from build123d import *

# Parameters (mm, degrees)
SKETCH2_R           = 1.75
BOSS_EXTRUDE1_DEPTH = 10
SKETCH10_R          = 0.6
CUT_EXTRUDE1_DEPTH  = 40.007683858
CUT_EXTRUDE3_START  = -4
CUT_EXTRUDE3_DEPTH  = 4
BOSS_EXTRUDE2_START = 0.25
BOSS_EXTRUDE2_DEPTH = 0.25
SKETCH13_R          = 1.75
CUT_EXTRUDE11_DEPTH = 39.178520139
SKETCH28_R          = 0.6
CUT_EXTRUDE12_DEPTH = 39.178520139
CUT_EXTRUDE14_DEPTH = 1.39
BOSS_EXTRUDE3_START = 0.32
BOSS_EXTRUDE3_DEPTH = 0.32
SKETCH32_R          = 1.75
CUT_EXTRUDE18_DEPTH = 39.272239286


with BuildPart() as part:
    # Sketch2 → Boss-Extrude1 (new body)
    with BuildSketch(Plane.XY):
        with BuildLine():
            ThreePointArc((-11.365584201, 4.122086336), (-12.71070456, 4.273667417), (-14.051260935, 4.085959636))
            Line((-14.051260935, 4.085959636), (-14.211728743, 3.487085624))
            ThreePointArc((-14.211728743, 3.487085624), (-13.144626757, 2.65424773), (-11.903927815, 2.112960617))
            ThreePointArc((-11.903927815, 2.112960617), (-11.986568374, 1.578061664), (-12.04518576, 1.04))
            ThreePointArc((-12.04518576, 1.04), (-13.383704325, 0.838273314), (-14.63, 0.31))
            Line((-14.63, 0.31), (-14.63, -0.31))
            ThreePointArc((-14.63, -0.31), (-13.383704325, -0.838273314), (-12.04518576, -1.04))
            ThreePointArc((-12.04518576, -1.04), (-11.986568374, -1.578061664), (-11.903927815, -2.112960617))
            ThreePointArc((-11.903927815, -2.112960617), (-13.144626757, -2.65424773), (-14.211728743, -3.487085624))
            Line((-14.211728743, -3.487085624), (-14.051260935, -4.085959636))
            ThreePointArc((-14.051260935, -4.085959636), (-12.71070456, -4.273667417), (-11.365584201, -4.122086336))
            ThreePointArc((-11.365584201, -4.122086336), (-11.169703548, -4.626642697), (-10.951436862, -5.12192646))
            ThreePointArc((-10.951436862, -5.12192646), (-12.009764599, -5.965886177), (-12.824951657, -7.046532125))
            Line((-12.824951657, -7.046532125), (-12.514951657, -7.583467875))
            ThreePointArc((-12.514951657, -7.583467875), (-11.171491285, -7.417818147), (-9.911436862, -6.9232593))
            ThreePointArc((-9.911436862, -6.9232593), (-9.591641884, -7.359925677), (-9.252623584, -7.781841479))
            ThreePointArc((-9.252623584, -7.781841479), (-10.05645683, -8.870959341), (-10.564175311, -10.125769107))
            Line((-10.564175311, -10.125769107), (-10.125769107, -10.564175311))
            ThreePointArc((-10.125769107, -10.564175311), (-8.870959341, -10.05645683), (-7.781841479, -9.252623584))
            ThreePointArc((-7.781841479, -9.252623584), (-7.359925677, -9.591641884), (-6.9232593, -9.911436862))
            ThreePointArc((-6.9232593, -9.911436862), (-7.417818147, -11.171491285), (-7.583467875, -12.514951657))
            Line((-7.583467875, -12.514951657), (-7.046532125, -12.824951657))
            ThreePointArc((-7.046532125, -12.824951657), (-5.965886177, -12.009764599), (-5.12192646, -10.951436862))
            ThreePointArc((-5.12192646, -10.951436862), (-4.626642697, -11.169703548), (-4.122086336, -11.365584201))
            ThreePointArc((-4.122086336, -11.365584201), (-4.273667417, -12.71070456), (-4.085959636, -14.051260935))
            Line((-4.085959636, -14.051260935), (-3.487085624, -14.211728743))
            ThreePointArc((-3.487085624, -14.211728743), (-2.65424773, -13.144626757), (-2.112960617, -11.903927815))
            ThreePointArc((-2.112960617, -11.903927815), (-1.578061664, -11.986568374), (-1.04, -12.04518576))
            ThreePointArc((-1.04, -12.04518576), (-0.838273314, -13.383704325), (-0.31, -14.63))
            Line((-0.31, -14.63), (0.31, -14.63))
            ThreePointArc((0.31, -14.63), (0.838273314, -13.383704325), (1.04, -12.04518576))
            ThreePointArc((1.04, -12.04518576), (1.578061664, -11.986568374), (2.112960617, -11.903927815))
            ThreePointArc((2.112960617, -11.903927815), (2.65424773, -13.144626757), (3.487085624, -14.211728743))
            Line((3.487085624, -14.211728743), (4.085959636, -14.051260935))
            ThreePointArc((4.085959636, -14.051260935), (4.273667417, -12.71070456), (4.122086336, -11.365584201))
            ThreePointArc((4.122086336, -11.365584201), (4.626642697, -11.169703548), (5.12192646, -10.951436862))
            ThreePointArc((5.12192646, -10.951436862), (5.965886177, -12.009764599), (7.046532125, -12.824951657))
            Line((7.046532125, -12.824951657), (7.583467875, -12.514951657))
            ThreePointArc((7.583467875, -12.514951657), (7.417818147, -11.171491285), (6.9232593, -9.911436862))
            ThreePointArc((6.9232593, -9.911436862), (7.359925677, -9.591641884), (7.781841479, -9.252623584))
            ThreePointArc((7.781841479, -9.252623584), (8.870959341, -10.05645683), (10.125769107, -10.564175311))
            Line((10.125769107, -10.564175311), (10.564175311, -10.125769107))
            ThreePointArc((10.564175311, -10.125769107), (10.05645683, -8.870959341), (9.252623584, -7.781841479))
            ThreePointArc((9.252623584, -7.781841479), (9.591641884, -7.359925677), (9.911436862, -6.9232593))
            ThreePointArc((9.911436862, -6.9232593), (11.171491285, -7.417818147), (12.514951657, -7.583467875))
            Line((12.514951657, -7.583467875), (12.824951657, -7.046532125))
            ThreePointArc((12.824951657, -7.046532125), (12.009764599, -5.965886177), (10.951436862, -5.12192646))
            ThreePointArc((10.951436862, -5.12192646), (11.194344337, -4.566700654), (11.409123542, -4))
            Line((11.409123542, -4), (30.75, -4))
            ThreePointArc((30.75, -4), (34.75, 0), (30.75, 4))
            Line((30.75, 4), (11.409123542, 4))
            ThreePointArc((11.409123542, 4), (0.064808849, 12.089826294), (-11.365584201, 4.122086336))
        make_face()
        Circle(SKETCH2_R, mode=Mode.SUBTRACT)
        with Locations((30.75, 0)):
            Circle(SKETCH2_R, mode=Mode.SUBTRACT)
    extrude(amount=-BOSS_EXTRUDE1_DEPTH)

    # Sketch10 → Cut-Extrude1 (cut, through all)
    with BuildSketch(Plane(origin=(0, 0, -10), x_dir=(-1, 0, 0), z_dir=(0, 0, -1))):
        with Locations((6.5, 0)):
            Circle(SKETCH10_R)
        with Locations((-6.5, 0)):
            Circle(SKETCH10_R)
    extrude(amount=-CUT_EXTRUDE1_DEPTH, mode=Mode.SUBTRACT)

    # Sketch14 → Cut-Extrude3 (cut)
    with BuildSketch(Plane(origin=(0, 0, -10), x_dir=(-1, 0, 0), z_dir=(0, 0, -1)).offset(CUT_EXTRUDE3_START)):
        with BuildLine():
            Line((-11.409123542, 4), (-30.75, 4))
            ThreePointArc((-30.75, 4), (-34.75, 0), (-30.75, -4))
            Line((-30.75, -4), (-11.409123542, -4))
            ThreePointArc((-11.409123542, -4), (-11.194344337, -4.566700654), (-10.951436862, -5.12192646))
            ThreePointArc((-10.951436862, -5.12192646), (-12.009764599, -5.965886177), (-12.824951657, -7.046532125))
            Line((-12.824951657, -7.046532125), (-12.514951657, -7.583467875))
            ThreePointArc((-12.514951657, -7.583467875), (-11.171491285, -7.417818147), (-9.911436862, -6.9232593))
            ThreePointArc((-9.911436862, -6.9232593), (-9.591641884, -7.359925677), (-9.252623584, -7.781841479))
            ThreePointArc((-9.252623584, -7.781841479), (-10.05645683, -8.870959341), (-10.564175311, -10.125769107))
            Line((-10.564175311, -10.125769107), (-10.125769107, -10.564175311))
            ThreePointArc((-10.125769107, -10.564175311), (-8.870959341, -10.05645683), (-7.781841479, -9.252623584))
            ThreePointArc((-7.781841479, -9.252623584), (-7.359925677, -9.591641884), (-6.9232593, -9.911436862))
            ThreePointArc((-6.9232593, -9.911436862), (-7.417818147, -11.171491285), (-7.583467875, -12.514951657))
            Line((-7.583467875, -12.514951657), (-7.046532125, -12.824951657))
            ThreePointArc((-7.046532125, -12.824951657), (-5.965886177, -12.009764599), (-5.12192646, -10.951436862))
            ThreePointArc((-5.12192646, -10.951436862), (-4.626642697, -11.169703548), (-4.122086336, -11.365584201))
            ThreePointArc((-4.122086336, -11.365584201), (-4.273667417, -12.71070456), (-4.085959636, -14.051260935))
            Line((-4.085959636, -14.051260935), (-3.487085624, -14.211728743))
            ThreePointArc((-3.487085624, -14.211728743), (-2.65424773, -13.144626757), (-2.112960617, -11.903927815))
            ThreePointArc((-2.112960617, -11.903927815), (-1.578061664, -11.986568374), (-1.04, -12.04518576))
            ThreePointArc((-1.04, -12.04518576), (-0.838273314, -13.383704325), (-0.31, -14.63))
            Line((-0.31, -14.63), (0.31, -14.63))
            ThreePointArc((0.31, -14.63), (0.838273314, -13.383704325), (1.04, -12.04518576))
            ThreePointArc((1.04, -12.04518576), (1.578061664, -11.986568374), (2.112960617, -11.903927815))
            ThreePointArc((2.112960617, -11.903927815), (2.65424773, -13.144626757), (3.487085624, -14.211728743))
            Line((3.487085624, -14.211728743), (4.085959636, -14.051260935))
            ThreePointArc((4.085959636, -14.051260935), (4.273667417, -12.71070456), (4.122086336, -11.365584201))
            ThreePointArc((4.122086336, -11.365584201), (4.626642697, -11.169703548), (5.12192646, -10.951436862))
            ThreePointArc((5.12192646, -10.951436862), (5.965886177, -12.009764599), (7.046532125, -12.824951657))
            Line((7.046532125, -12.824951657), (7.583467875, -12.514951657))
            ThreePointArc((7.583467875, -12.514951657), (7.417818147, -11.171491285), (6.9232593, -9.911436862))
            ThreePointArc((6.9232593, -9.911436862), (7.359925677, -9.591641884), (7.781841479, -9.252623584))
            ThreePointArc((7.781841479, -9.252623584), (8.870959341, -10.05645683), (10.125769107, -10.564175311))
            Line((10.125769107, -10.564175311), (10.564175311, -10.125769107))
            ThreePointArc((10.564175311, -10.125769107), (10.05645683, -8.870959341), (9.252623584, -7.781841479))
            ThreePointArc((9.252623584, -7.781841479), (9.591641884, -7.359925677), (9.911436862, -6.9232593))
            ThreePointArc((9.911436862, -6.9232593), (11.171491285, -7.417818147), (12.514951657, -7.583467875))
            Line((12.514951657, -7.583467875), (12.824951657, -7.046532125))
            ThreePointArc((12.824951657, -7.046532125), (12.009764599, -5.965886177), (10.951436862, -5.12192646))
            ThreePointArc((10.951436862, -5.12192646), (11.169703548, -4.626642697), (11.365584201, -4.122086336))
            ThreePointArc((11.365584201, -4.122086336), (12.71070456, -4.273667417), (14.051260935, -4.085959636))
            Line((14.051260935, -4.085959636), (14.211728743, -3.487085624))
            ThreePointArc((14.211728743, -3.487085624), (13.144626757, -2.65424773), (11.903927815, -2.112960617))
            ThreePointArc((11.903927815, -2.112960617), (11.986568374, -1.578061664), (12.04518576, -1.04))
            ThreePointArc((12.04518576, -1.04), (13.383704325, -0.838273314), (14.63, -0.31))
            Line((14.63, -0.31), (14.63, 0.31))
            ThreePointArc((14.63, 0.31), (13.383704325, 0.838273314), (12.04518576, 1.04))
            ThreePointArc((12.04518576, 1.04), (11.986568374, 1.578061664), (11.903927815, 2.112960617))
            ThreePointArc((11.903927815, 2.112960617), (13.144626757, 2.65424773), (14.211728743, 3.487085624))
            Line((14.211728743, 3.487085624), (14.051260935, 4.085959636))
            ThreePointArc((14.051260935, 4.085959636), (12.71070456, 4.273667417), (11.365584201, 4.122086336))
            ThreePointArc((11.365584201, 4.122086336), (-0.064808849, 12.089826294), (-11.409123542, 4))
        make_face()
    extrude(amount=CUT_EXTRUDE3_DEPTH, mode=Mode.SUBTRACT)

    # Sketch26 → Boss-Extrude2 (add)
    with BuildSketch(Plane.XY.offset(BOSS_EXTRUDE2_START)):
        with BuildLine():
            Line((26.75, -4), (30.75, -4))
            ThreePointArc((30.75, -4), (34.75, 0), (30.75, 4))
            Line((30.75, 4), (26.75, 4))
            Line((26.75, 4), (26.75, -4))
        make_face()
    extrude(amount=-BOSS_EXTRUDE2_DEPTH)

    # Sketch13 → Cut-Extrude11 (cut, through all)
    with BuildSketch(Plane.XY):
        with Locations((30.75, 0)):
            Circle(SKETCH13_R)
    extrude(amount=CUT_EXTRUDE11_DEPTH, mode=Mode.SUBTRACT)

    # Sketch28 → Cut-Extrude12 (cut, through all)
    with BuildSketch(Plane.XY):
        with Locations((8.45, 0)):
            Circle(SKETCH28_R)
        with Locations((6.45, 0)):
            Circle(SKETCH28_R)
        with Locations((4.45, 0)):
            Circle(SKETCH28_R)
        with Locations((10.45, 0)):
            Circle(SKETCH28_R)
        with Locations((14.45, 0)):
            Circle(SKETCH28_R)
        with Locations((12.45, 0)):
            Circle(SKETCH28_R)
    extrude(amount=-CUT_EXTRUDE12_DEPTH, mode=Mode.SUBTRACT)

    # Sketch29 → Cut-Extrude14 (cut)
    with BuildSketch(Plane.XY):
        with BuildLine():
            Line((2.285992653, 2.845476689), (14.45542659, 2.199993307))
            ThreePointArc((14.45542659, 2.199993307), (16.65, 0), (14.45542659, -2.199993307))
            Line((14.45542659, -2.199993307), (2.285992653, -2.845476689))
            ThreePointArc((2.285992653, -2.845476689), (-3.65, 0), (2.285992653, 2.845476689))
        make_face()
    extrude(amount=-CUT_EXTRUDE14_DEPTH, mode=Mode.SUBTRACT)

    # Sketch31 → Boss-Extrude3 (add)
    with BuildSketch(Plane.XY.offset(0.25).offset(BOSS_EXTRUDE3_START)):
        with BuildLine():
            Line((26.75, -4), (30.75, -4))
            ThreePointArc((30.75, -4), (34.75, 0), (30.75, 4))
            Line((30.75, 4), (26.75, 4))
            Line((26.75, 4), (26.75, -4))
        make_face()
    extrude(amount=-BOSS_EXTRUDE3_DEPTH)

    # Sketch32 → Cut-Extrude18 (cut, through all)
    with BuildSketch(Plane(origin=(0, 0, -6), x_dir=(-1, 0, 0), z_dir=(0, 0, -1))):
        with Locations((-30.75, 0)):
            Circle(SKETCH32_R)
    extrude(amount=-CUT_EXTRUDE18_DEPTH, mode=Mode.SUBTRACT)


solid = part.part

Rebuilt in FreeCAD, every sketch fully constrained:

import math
import FreeCAD as App
import Part
import Sketcher

V = App.Vector
Q = App.Units.Quantity

doc = App.newDocument("Part")
body = doc.addObject("PartDesign::Body", "Body")

# Sketch on XY plane
sketch1 = body.newObject("Sketcher::SketchObject", "Sketch")
sketch1.AttachmentSupport = (doc.getObject("XY_Plane"), [""])
sketch1.MapMode = "FlatFace"
sketch1.addGeometry([
    Part.ArcOfCircle(Part.Circle(V(-12.6, -1.1, 0), V(0, 0, 1), 5.4), math.radians(76), math.radians(105)),  # 0
    Part.LineSegment(V(-14.1, 4.1, 0), V(-14.2, 3.5, 0)),  # 1
    Part.ArcOfCircle(Part.Circle(V(-10.4, 7.3, 0), V(0, 0, 1), 5.4), math.radians(-135), math.radians(-106)),  # 2
    Part.ArcOfCircle(Part.Circle(V(0, 0, 0), V(0, 0, 1), 12.1), math.radians(169.93), math.radians(175.07)),  # 3
    Part.ArcOfCircle(Part.Circle(V(-11.9, -4.4, 0), V(0, 0, 1), 5.4), math.radians(91), math.radians(120)),  # 4
    Part.LineSegment(V(-14.6, 0.3, 0), V(-14.6, -0.3, 0)),  # 5
    Part.ArcOfCircle(Part.Circle(V(-11.9, 4.4, 0), V(0, 0, 1), 5.4), math.radians(-120), math.radians(-91)),  # 6
    Part.ArcOfCircle(Part.Circle(V(0, 0, 0), V(0, 0, 1), 12.1), math.radians(-175.07), math.radians(-169.93)),  # 7
    Part.ArcOfCircle(Part.Circle(V(-10.4, -7.3, 0), V(0, 0, 1), 5.4), math.radians(106), math.radians(135)),  # 8
    Part.LineSegment(V(-14.2, -3.5, 0), V(-14.1, -4.1, 0)),  # 9
    Part.ArcOfCircle(Part.Circle(V(-12.6, 1.1, 0), V(0, 0, 1), 5.4), math.radians(-105), math.radians(-76)),  # 10
    Part.ArcOfCircle(Part.Circle(V(0, 0, 0), V(0, 0, 1), 12.1), math.radians(-160.07), math.radians(-154.93)),  # 11
    Part.ArcOfCircle(Part.Circle(V(-8.1, -9.7, 0), V(0, 0, 1), 5.4), math.radians(121), math.radians(150)),  # 12
    Part.LineSegment(V(-12.8, -7, 0), V(-12.5, -7.6, 0)),  # 13
    Part.ArcOfCircle(Part.Circle(V(-12.5, -2.2, 0), V(0, 0, 1), 5.4), math.radians(-90), math.radians(-61)),  # 14
    Part.ArcOfCircle(Part.Circle(V(0, 0, 0), V(0, 0, 1), 12.1), math.radians(-145.07), math.radians(-139.93)),  # 15
    Part.ArcOfCircle(Part.Circle(V(-5.3, -11.5, 0), V(0, 0, 1), 5.4), math.radians(136), math.radians(165)),  # 16
    Part.LineSegment(V(-10.6, -10.1, 0), V(-10.1, -10.6, 0)),  # 17
    Part.ArcOfCircle(Part.Circle(V(-11.5, -5.3, 0), V(0, 0, 1), 5.4), math.radians(-75), math.radians(-46)),  # 18
    Part.ArcOfCircle(Part.Circle(V(0, 0, 0), V(0, 0, 1), 12.1), math.radians(-130.07), math.radians(-124.93)),  # 19
    Part.ArcOfCircle(Part.Circle(V(-2.2, -12.5, 0), V(0, 0, 1), 5.4), math.radians(151), math.radians(180)),  # 20
    Part.LineSegment(V(-7.6, -12.5, 0), V(-7, -12.8, 0)),  # 21
    Part.ArcOfCircle(Part.Circle(V(-9.7, -8.1, 0), V(0, 0, 1), 5.4), math.radians(-60), math.radians(-31)),  # 22
    Part.ArcOfCircle(Part.Circle(V(0, 0, 0), V(0, 0, 1), 12.1), math.radians(-115.07), math.radians(-109.93)),  # 23
    Part.ArcOfCircle(Part.Circle(V(1.1, -12.6, 0), V(0, 0, 1), 5.4), math.radians(166), math.radians(195)),  # 24
    Part.LineSegment(V(-4.1, -14.1, 0), V(-3.5, -14.2, 0)),  # 25
    Part.ArcOfCircle(Part.Circle(V(-7.3, -10.4, 0), V(0, 0, 1), 5.4), math.radians(-45), math.radians(-16)),  # 26
    Part.ArcOfCircle(Part.Circle(V(0, 0, 0), V(0, 0, 1), 12.1), math.radians(-100.07), math.radians(-94.93)),  # 27
    Part.ArcOfCircle(Part.Circle(V(4.4, -11.9, 0), V(0, 0, 1), 5.4), math.radians(-179), math.radians(-150)),  # 28
    Part.LineSegment(V(-0.3, -14.6, 0), V(0.3, -14.6, 0)),  # 29
    Part.ArcOfCircle(Part.Circle(V(-4.4, -11.9, 0), V(0, 0, 1), 5.4), math.radians(-30), math.radians(-1)),  # 30
    Part.ArcOfCircle(Part.Circle(V(0, 0, 0), V(0, 0, 1), 12.1), math.radians(-85.07), math.radians(-79.93)),  # 31
    Part.ArcOfCircle(Part.Circle(V(7.3, -10.4, 0), V(0, 0, 1), 5.4), math.radians(-164), math.radians(-135)),  # 32
    Part.LineSegment(V(3.5, -14.2, 0), V(4.1, -14.1, 0)),  # 33
    Part.ArcOfCircle(Part.Circle(V(-1.1, -12.6, 0), V(0, 0, 1), 5.4), math.radians(-15), math.radians(14)),  # 34
    Part.ArcOfCircle(Part.Circle(V(0, 0, 0), V(0, 0, 1), 12.1), math.radians(-70.07), math.radians(-64.93)),  # 35
    Part.ArcOfCircle(Part.Circle(V(9.7, -8.1, 0), V(0, 0, 1), 5.4), math.radians(-149), math.radians(-120)),  # 36
    Part.LineSegment(V(7, -12.8, 0), V(7.6, -12.5, 0)),  # 37
    Part.ArcOfCircle(Part.Circle(V(2.2, -12.5, 0), V(0, 0, 1), 5.4), math.radians(0), math.radians(29)),  # 38
    Part.ArcOfCircle(Part.Circle(V(0, 0, 0), V(0, 0, 1), 12.1), math.radians(-55.07), math.radians(-49.93)),  # 39
    Part.ArcOfCircle(Part.Circle(V(11.5, -5.3, 0), V(0, 0, 1), 5.4), math.radians(-134), math.radians(-105)),  # 40
    Part.LineSegment(V(10.1, -10.6, 0), V(10.6, -10.1, 0)),  # 41
    Part.ArcOfCircle(Part.Circle(V(5.3, -11.5, 0), V(0, 0, 1), 5.4), math.radians(15), math.radians(44)),  # 42
    Part.ArcOfCircle(Part.Circle(V(0, 0, 0), V(0, 0, 1), 12.1), math.radians(-40.07), math.radians(-34.93)),  # 43
    Part.ArcOfCircle(Part.Circle(V(12.5, -2.2, 0), V(0, 0, 1), 5.4), math.radians(-119), math.radians(-90)),  # 44
    Part.LineSegment(V(12.5, -7.6, 0), V(12.8, -7, 0)),  # 45
    Part.ArcOfCircle(Part.Circle(V(8.1, -9.7, 0), V(0, 0, 1), 5.4), math.radians(30), math.radians(59)),  # 46
    Part.ArcOfCircle(Part.Circle(V(0, 0, 0), V(0, 0, 1), 12.1), math.radians(-25.07), math.radians(-19.32)),  # 47
    Part.LineSegment(V(11.4, -4, 0), V(30.8, -4, 0)),  # 48
    Part.ArcOfCircle(Part.Circle(V(30.8, 0, 0), V(0, 0, 1), 4), math.radians(-90), math.radians(90)),  # 49
    Part.LineSegment(V(30.8, 4, 0), V(11.4, 4, 0)),  # 50
    Part.ArcOfCircle(Part.Circle(V(0, 0, 0), V(0, 0, 1), 12.1), math.radians(19), math.radians(160)),  # 51
    Part.Circle(V(0, 0, 0), V(0, 0, 1), 1.8),  # 52
    Part.Circle(V(30.8, 0, 0), V(0, 0, 1), 1.8),  # 53
], False)
sketch1.addConstraint([
    Sketcher.Constraint("Coincident", 0, 2, 1, 1),
    Sketcher.Constraint("Coincident", 1, 2, 2, 1),
    Sketcher.Constraint("Coincident", 2, 2, 3, 1),
    Sketcher.Constraint("Coincident", 3, 2, 4, 1),
    Sketcher.Constraint("Coincident", 4, 2, 5, 1),
    Sketcher.Constraint("Coincident", 5, 2, 6, 1),
    Sketcher.Constraint("Coincident", 6, 2, 7, 1),
    Sketcher.Constraint("Coincident", 7, 2, 8, 1),
    Sketcher.Constraint("Coincident", 8, 2, 9, 1),
    Sketcher.Constraint("Coincident", 9, 2, 10, 1),
    Sketcher.Constraint("Coincident", 10, 2, 11, 1),
    Sketcher.Constraint("Coincident", 11, 2, 12, 1),
    Sketcher.Constraint("Coincident", 12, 2, 13, 1),
    Sketcher.Constraint("Coincident", 13, 2, 14, 1),
    Sketcher.Constraint("Coincident", 14, 2, 15, 1),
    Sketcher.Constraint("Coincident", 15, 2, 16, 1),
    Sketcher.Constraint("Coincident", 16, 2, 17, 1),
    Sketcher.Constraint("Coincident", 17, 2, 18, 1),
    Sketcher.Constraint("Coincident", 18, 2, 19, 1),
    Sketcher.Constraint("Coincident", 19, 2, 20, 1),
    Sketcher.Constraint("Coincident", 20, 2, 21, 1),
    Sketcher.Constraint("Coincident", 21, 2, 22, 1),
    Sketcher.Constraint("Coincident", 22, 2, 23, 1),
    Sketcher.Constraint("Coincident", 23, 2, 24, 1),
    Sketcher.Constraint("Coincident", 24, 2, 25, 1),
    Sketcher.Constraint("Coincident", 25, 2, 26, 1),
    Sketcher.Constraint("Coincident", 26, 2, 27, 1),
    Sketcher.Constraint("Coincident", 27, 2, 28, 1),
    Sketcher.Constraint("Coincident", 28, 2, 29, 1),
    Sketcher.Constraint("Coincident", 29, 2, 30, 1),
    Sketcher.Constraint("Coincident", 30, 2, 31, 1),
    Sketcher.Constraint("Coincident", 31, 2, 32, 1),
    Sketcher.Constraint("Coincident", 32, 2, 33, 1),
    Sketcher.Constraint("Coincident", 33, 2, 34, 1),
    Sketcher.Constraint("Coincident", 34, 2, 35, 1),
    Sketcher.Constraint("Coincident", 35, 2, 36, 1),
    Sketcher.Constraint("Coincident", 36, 2, 37, 1),
    Sketcher.Constraint("Coincident", 37, 2, 38, 1),
    Sketcher.Constraint("Coincident", 38, 2, 39, 1),
    Sketcher.Constraint("Coincident", 39, 2, 40, 1),
    Sketcher.Constraint("Coincident", 40, 2, 41, 1),
    Sketcher.Constraint("Coincident", 41, 2, 42, 1),
    Sketcher.Constraint("Coincident", 42, 2, 43, 1),
    Sketcher.Constraint("Coincident", 43, 2, 44, 1),
    Sketcher.Constraint("Coincident", 44, 2, 45, 1),
    Sketcher.Constraint("Coincident", 45, 2, 46, 1),
    Sketcher.Constraint("Coincident", 46, 2, 47, 1),
    Sketcher.Constraint("Coincident", 47, 2, 48, 1),
    Sketcher.Constraint("Tangent", 48, 2, 49, 1),
    Sketcher.Constraint("Tangent", 49, 2, 50, 1),
    Sketcher.Constraint("Coincident", 50, 2, 51, 1),
    Sketcher.Constraint("Coincident", 51, 2, 0, 1),
    Sketcher.Constraint("Vertical", 5),
    Sketcher.Constraint("Horizontal", 29),
    Sketcher.Constraint("Horizontal", 48),
    Sketcher.Constraint("Horizontal", 50),
    Sketcher.Constraint("Coincident", 3, 3, -1, 1),
    Sketcher.Constraint("Coincident", 7, 3, -1, 1),
    Sketcher.Constraint("Coincident", 11, 3, -1, 1),
    Sketcher.Constraint("Coincident", 15, 3, -1, 1),
    Sketcher.Constraint("Coincident", 19, 3, -1, 1),
    Sketcher.Constraint("Coincident", 23, 3, -1, 1),
    Sketcher.Constraint("Coincident", 27, 3, -1, 1),
    Sketcher.Constraint("Coincident", 31, 3, -1, 1),
    Sketcher.Constraint("Coincident", 35, 3, -1, 1),
    Sketcher.Constraint("Coincident", 39, 3, -1, 1),
    Sketcher.Constraint("Coincident", 43, 3, -1, 1),
    Sketcher.Constraint("Coincident", 47, 3, -1, 1),
    Sketcher.Constraint("Coincident", 51, 3, -1, 1),
    Sketcher.Constraint("Coincident", 52, 3, -1, 1),
    Sketcher.Constraint("Coincident", 53, 3, 49, 3),
    Sketcher.Constraint("Equal", 0, 2),
    Sketcher.Constraint("Equal", 2, 4),
    Sketcher.Constraint("Equal", 4, 6),
    Sketcher.Constraint("Equal", 3, 7),
    Sketcher.Constraint("Equal", 6, 8),
    Sketcher.Constraint("Equal", 8, 10),
    Sketcher.Constraint("Equal", 7, 11),
    Sketcher.Constraint("Equal", 10, 12),
    Sketcher.Constraint("Equal", 12, 14),
    Sketcher.Constraint("Equal", 11, 15),
    Sketcher.Constraint("Equal", 14, 16),
    Sketcher.Constraint("Equal", 16, 18),
    Sketcher.Constraint("Equal", 15, 19),
    Sketcher.Constraint("Equal", 18, 20),
    Sketcher.Constraint("Equal", 20, 22),
    Sketcher.Constraint("Equal", 19, 23),
    Sketcher.Constraint("Equal", 22, 24),
    Sketcher.Constraint("Equal", 24, 26),
    Sketcher.Constraint("Equal", 23, 27),
    Sketcher.Constraint("Equal", 26, 28),
    Sketcher.Constraint("Equal", 28, 30),
    Sketcher.Constraint("Equal", 27, 31),
    Sketcher.Constraint("Equal", 30, 32),
    Sketcher.Constraint("Equal", 32, 34),
    Sketcher.Constraint("Equal", 31, 35),
    Sketcher.Constraint("Equal", 34, 36),
    Sketcher.Constraint("Equal", 36, 38),
    Sketcher.Constraint("Equal", 35, 39),
    Sketcher.Constraint("Equal", 38, 40),
    Sketcher.Constraint("Equal", 40, 42),
    Sketcher.Constraint("Equal", 39, 43),
    Sketcher.Constraint("Equal", 42, 44),
    Sketcher.Constraint("Equal", 44, 46),
    Sketcher.Constraint("Equal", 43, 47),
    Sketcher.Constraint("Equal", 47, 51),
    Sketcher.Constraint("Equal", 52, 53),
    Sketcher.Constraint("Symmetric", 28, 3, 30, 3, -2),
    Sketcher.Constraint("Symmetric", 26, 3, 32, 3, -2),
    Sketcher.Constraint("Symmetric", 24, 3, 34, 3, -2),
    Sketcher.Constraint("Symmetric", 22, 3, 36, 3, -2),
    Sketcher.Constraint("Symmetric", 20, 3, 38, 3, -2),
    Sketcher.Constraint("Symmetric", 18, 3, 40, 3, -2),
    Sketcher.Constraint("Symmetric", 16, 3, 42, 3, -2),
    Sketcher.Constraint("Symmetric", 14, 3, 44, 3, -2),
    Sketcher.Constraint("Symmetric", 12, 3, 46, 3, -2),
    Sketcher.Constraint("Symmetric", 4, 3, 6, 3, -1),
    Sketcher.Constraint("Symmetric", 2, 3, 8, 3, -1),
    Sketcher.Constraint("Symmetric", 0, 3, 10, 3, -1),
    Sketcher.Constraint("PointOnObject", 49, 3, -1),
    Sketcher.Constraint("Perpendicular", 1, 25),
    Sketcher.Constraint("Perpendicular", 9, 33),
    Sketcher.Constraint("Perpendicular", 13, 37),
    Sketcher.Constraint("Perpendicular", 17, 41),
    Sketcher.Constraint("Perpendicular", 21, 45),
    Sketcher.Constraint("Horizontal", 25, 2, 32, 2),
    Sketcher.Constraint("Horizontal", 24, 2, 33, 2),
    Sketcher.Constraint("Horizontal", 21, 2, 36, 2),
    Sketcher.Constraint("Horizontal", 20, 2, 37, 2),
    Sketcher.Constraint("Horizontal", 17, 2, 40, 2),
    Sketcher.Constraint("Horizontal", 16, 2, 41, 2),
    Sketcher.Constraint("Horizontal", 12, 2, 45, 2),
    Sketcher.Constraint("Vertical", 1, 2, 8, 2),
    Sketcher.Constraint("Equal", 29, 5),
    Sketcher.Constraint("Equal", 9, 13),
    Sketcher.Constraint("Equal", 13, 17),
    Sketcher.Constraint("Equal", 17, 21),
    Sketcher.Constraint("Equal", 21, 25),
    Sketcher.Constraint("Radius", 49, 4.0),
    Sketcher.Constraint("Diameter", 52, 3.5),
    Sketcher.Constraint("Radius", 0, 5.4),
    Sketcher.Constraint("Angle", 1, Q("-105 deg")),
    Sketcher.Constraint("Angle", 13, Q("-60 deg")),
    Sketcher.Constraint("Radius", 3, 12.09),
    Sketcher.Constraint("DistanceX", 29, 1, 29, 2, 0.62),
    Sketcher.Constraint("Distance", 1, 0.62),
    Sketcher.Constraint("DistanceX", -1, 1, 49, 3, 30.75),
    Sketcher.Constraint("DistanceY", -1, 1, 3, 2, 1.04),
    Sketcher.Constraint("DistanceX", 4, 2, -1, 1, 14.63),
    Sketcher.Constraint("DistanceX", 27, 2, -1, 1, 1.04),
    Sketcher.Constraint("DistanceY", 28, 2, -1, 1, 14.63),
    Sketcher.Constraint("DistanceX", 2, 3, -1, 1, 10.38197),
    Sketcher.Constraint("DistanceY", 12, 3, -1, 1, 9.732559),
    Sketcher.Constraint("DistanceX", 14, 3, -1, 1, 12.49883),
    Sketcher.Constraint("DistanceY", 14, 3, -1, 1, 2.183492),
    Sketcher.Constraint("DistanceX", 20, 3, -1, 1, 2.183492),
    Sketcher.Constraint("DistanceY", 20, 3, -1, 1, 12.49883),
    Sketcher.Constraint("DistanceX", 22, 3, -1, 1, 9.732559),
    Sketcher.Constraint("DistanceY", 26, 3, -1, 1, 10.38197),
    Sketcher.Constraint("DistanceX", 0, 2, -1, 1, 14.051261),
    Sketcher.Constraint("DistanceY", -1, 1, 0, 2, 4.08596),
    Sketcher.Constraint("DistanceX", 12, 2, -1, 1, 12.824952),
    Sketcher.Constraint("DistanceY", 15, 2, -1, 1, 7.781841),
    Sketcher.Constraint("DistanceY", 16, 2, -1, 1, 10.125769),
    Sketcher.Constraint("DistanceX", 17, 2, -1, 1, 10.125769),
    Sketcher.Constraint("DistanceX", 18, 2, -1, 1, 7.781841),
    Sketcher.Constraint("DistanceY", 20, 2, -1, 1, 12.514952),
    Sketcher.Constraint("DistanceX", 24, 2, -1, 1, 4.08596),
    Sketcher.Constraint("DistanceY", 24, 2, -1, 1, 14.051261),
    Sketcher.Constraint("DistanceX", 0, 3, -1, 1, 12.638072),
    Sketcher.Constraint("DistanceX", -1, 1, 24, 3, 1.125844),
])
pad1 = body.newObject("PartDesign::Pad", "Pad")
pad1.Profile = sketch1
pad1.Length = 10
pad1.Reversed = True

# Sketch on XY plane
sketch2 = body.newObject("Sketcher::SketchObject", "Sketch001")
sketch2.AttachmentSupport = (doc.getObject("XY_Plane"), [""])
sketch2.MapMode = "FlatFace"
sketch2.AttachmentOffset = App.Placement(V(0, 0, -10), App.Rotation())
sketch2.addGeometry([
    Part.Circle(V(-6.5, 0, 0), V(0, 0, 1), 0.6),
    Part.Circle(V(6.5, 0, 0), V(0, 0, 1), 0.6),
], False)
sketch2.addConstraint([
    Sketcher.Constraint("Equal", 0, 1),
    Sketcher.Constraint("Symmetric", 0, 3, 1, 3, -1, 1),
    Sketcher.Constraint("PointOnObject", 0, 3, -1),
    Sketcher.Constraint("Diameter", 0, 1.2),
    Sketcher.Constraint("DistanceX", 0, 3, 1, 3, 13.0),
])
pocket1 = body.newObject("PartDesign::Pocket", "Pocket")
pocket1.Profile = sketch2
pocket1.Type = "ThroughAll"
pocket1.Reversed = True

# Sketch on XY plane
sketch3 = body.newObject("Sketcher::SketchObject", "Sketch002")
sketch3.AttachmentSupport = (doc.getObject("XY_Plane"), [""])
sketch3.MapMode = "FlatFace"
sketch3.AttachmentOffset = App.Placement(V(0, 0, -6), App.Rotation())
sketch3.addGeometry([
    Part.LineSegment(V(11.4, 4, 0), V(30.8, 4, 0)),  # 0
    Part.ArcOfCircle(Part.Circle(V(30.8, 0, 0), V(0, 0, 1), 4), math.radians(-90), math.radians(90)),  # 1
    Part.LineSegment(V(30.8, -4, 0), V(11.4, -4, 0)),  # 2
    Part.ArcOfCircle(Part.Circle(V(0, 0, 0), V(0, 0, 1), 12.1), math.radians(-25.07), math.radians(-19.32)),  # 3
    Part.ArcOfCircle(Part.Circle(V(8.1, -9.7, 0), V(0, 0, 1), 5.4), math.radians(30), math.radians(59)),  # 4
    Part.LineSegment(V(12.8, -7, 0), V(12.5, -7.6, 0)),  # 5
    Part.ArcOfCircle(Part.Circle(V(12.5, -2.2, 0), V(0, 0, 1), 5.4), math.radians(-119), math.radians(-90)),  # 6
    Part.ArcOfCircle(Part.Circle(V(0, 0, 0), V(0, 0, 1), 12.1), math.radians(-40.07), math.radians(-34.93)),  # 7
    Part.ArcOfCircle(Part.Circle(V(5.3, -11.5, 0), V(0, 0, 1), 5.4), math.radians(15), math.radians(44)),  # 8
    Part.LineSegment(V(10.6, -10.1, 0), V(10.1, -10.6, 0)),  # 9
    Part.ArcOfCircle(Part.Circle(V(11.5, -5.3, 0), V(0, 0, 1), 5.4), math.radians(-134), math.radians(-105)),  # 10
    Part.ArcOfCircle(Part.Circle(V(0, 0, 0), V(0, 0, 1), 12.1), math.radians(-55.07), math.radians(-49.93)),  # 11
    Part.ArcOfCircle(Part.Circle(V(2.2, -12.5, 0), V(0, 0, 1), 5.4), math.radians(0), math.radians(29)),  # 12
    Part.LineSegment(V(7.6, -12.5, 0), V(7, -12.8, 0)),  # 13
    Part.ArcOfCircle(Part.Circle(V(9.7, -8.1, 0), V(0, 0, 1), 5.4), math.radians(-149), math.radians(-120)),  # 14
    Part.ArcOfCircle(Part.Circle(V(0, 0, 0), V(0, 0, 1), 12.1), math.radians(-70.07), math.radians(-64.93)),  # 15
    Part.ArcOfCircle(Part.Circle(V(-1.1, -12.6, 0), V(0, 0, 1), 5.4), math.radians(-15), math.radians(14)),  # 16
    Part.LineSegment(V(4.1, -14.1, 0), V(3.5, -14.2, 0)),  # 17
    Part.ArcOfCircle(Part.Circle(V(7.3, -10.4, 0), V(0, 0, 1), 5.4), math.radians(-164), math.radians(-135)),  # 18
    Part.ArcOfCircle(Part.Circle(V(0, 0, 0), V(0, 0, 1), 12.1), math.radians(-85.07), math.radians(-79.93)),  # 19
    Part.ArcOfCircle(Part.Circle(V(-4.4, -11.9, 0), V(0, 0, 1), 5.4), math.radians(-30), math.radians(-1)),  # 20
    Part.LineSegment(V(0.3, -14.6, 0), V(-0.3, -14.6, 0)),  # 21
    Part.ArcOfCircle(Part.Circle(V(4.4, -11.9, 0), V(0, 0, 1), 5.4), math.radians(-179), math.radians(-150)),  # 22
    Part.ArcOfCircle(Part.Circle(V(0, 0, 0), V(0, 0, 1), 12.1), math.radians(-100.07), math.radians(-94.93)),  # 23
    Part.ArcOfCircle(Part.Circle(V(-7.3, -10.4, 0), V(0, 0, 1), 5.4), math.radians(-45), math.radians(-16)),  # 24
    Part.LineSegment(V(-3.5, -14.2, 0), V(-4.1, -14.1, 0)),  # 25
    Part.ArcOfCircle(Part.Circle(V(1.1, -12.6, 0), V(0, 0, 1), 5.4), math.radians(166), math.radians(195)),  # 26
    Part.ArcOfCircle(Part.Circle(V(0, 0, 0), V(0, 0, 1), 12.1), math.radians(-115.07), math.radians(-109.93)),  # 27
    Part.ArcOfCircle(Part.Circle(V(-9.7, -8.1, 0), V(0, 0, 1), 5.4), math.radians(-60), math.radians(-31)),  # 28
    Part.LineSegment(V(-7, -12.8, 0), V(-7.6, -12.5, 0)),  # 29
    Part.ArcOfCircle(Part.Circle(V(-2.2, -12.5, 0), V(0, 0, 1), 5.4), math.radians(151), math.radians(180)),  # 30
    Part.ArcOfCircle(Part.Circle(V(0, 0, 0), V(0, 0, 1), 12.1), math.radians(-130.07), math.radians(-124.93)),  # 31
    Part.ArcOfCircle(Part.Circle(V(-11.5, -5.3, 0), V(0, 0, 1), 5.4), math.radians(-75), math.radians(-46)),  # 32
    Part.LineSegment(V(-10.1, -10.6, 0), V(-10.6, -10.1, 0)),  # 33
    Part.ArcOfCircle(Part.Circle(V(-5.3, -11.5, 0), V(0, 0, 1), 5.4), math.radians(136), math.radians(165)),  # 34
    Part.ArcOfCircle(Part.Circle(V(0, 0, 0), V(0, 0, 1), 12.1), math.radians(-145.07), math.radians(-139.93)),  # 35
    Part.ArcOfCircle(Part.Circle(V(-12.5, -2.2, 0), V(0, 0, 1), 5.4), math.radians(-90), math.radians(-61)),  # 36
    Part.LineSegment(V(-12.5, -7.6, 0), V(-12.8, -7, 0)),  # 37
    Part.ArcOfCircle(Part.Circle(V(-8.1, -9.7, 0), V(0, 0, 1), 5.4), math.radians(121), math.radians(150)),  # 38
    Part.ArcOfCircle(Part.Circle(V(0, 0, 0), V(0, 0, 1), 12.1), math.radians(-160.07), math.radians(-154.93)),  # 39
    Part.ArcOfCircle(Part.Circle(V(-12.6, 1.1, 0), V(0, 0, 1), 5.4), math.radians(-105), math.radians(-76)),  # 40
    Part.LineSegment(V(-14.1, -4.1, 0), V(-14.2, -3.5, 0)),  # 41
    Part.ArcOfCircle(Part.Circle(V(-10.4, -7.3, 0), V(0, 0, 1), 5.4), math.radians(106), math.radians(135)),  # 42
    Part.ArcOfCircle(Part.Circle(V(0, 0, 0), V(0, 0, 1), 12.1), math.radians(-175.07), math.radians(-169.93)),  # 43
    Part.ArcOfCircle(Part.Circle(V(-11.9, 4.4, 0), V(0, 0, 1), 5.4), math.radians(-120), math.radians(-91)),  # 44
    Part.LineSegment(V(-14.6, -0.3, 0), V(-14.6, 0.3, 0)),  # 45
    Part.ArcOfCircle(Part.Circle(V(-11.9, -4.4, 0), V(0, 0, 1), 5.4), math.radians(91), math.radians(120)),  # 46
    Part.ArcOfCircle(Part.Circle(V(0, 0, 0), V(0, 0, 1), 12.1), math.radians(169.93), math.radians(175.07)),  # 47
    Part.ArcOfCircle(Part.Circle(V(-10.4, 7.3, 0), V(0, 0, 1), 5.4), math.radians(-135), math.radians(-106)),  # 48
    Part.LineSegment(V(-14.2, 3.5, 0), V(-14.1, 4.1, 0)),  # 49
    Part.ArcOfCircle(Part.Circle(V(-12.6, -1.1, 0), V(0, 0, 1), 5.4), math.radians(76), math.radians(105)),  # 50
    Part.ArcOfCircle(Part.Circle(V(0, 0, 0), V(0, 0, 1), 12.1), math.radians(19), math.radians(160)),  # 51
], False)
sketch3.addConstraint([
    Sketcher.Constraint("Tangent", 0, 2, 1, 2),
    Sketcher.Constraint("Tangent", 1, 1, 2, 1),
    Sketcher.Constraint("Coincident", 2, 2, 3, 2),
    Sketcher.Constraint("Coincident", 3, 1, 4, 2),
    Sketcher.Constraint("Coincident", 4, 1, 5, 1),
    Sketcher.Constraint("Coincident", 5, 2, 6, 2),
    Sketcher.Constraint("Coincident", 6, 1, 7, 2),
    Sketcher.Constraint("Coincident", 7, 1, 8, 2),
    Sketcher.Constraint("Coincident", 8, 1, 9, 1),
    Sketcher.Constraint("Coincident", 9, 2, 10, 2),
    Sketcher.Constraint("Coincident", 10, 1, 11, 2),
    Sketcher.Constraint("Coincident", 11, 1, 12, 2),
    Sketcher.Constraint("Coincident", 12, 1, 13, 1),
    Sketcher.Constraint("Coincident", 13, 2, 14, 2),
    Sketcher.Constraint("Coincident", 14, 1, 15, 2),
    Sketcher.Constraint("Coincident", 15, 1, 16, 2),
    Sketcher.Constraint("Coincident", 16, 1, 17, 1),
    Sketcher.Constraint("Coincident", 17, 2, 18, 2),
    Sketcher.Constraint("Coincident", 18, 1, 19, 2),
    Sketcher.Constraint("Coincident", 19, 1, 20, 2),
    Sketcher.Constraint("Coincident", 20, 1, 21, 1),
    Sketcher.Constraint("Coincident", 21, 2, 22, 2),
    Sketcher.Constraint("Coincident", 22, 1, 23, 2),
    Sketcher.Constraint("Coincident", 23, 1, 24, 2),
    Sketcher.Constraint("Coincident", 24, 1, 25, 1),
    Sketcher.Constraint("Coincident", 25, 2, 26, 2),
    Sketcher.Constraint("Coincident", 26, 1, 27, 2),
    Sketcher.Constraint("Coincident", 27, 1, 28, 2),
    Sketcher.Constraint("Coincident", 28, 1, 29, 1),
    Sketcher.Constraint("Coincident", 29, 2, 30, 2),
    Sketcher.Constraint("Coincident", 30, 1, 31, 2),
    Sketcher.Constraint("Coincident", 31, 1, 32, 2),
    Sketcher.Constraint("Coincident", 32, 1, 33, 1),
    Sketcher.Constraint("Coincident", 33, 2, 34, 2),
    Sketcher.Constraint("Coincident", 34, 1, 35, 2),
    Sketcher.Constraint("Coincident", 35, 1, 36, 2),
    Sketcher.Constraint("Coincident", 36, 1, 37, 1),
    Sketcher.Constraint("Coincident", 37, 2, 38, 2),
    Sketcher.Constraint("Coincident", 38, 1, 39, 2),
    Sketcher.Constraint("Coincident", 39, 1, 40, 2),
    Sketcher.Constraint("Coincident", 40, 1, 41, 1),
    Sketcher.Constraint("Coincident", 41, 2, 42, 2),
    Sketcher.Constraint("Coincident", 42, 1, 43, 2),
    Sketcher.Constraint("Coincident", 43, 1, 44, 2),
    Sketcher.Constraint("Coincident", 44, 1, 45, 1),
    Sketcher.Constraint("Coincident", 45, 2, 46, 2),
    Sketcher.Constraint("Coincident", 46, 1, 47, 2),
    Sketcher.Constraint("Coincident", 47, 1, 48, 2),
    Sketcher.Constraint("Coincident", 48, 1, 49, 1),
    Sketcher.Constraint("Coincident", 49, 2, 50, 2),
    Sketcher.Constraint("Coincident", 50, 1, 51, 2),
    Sketcher.Constraint("Coincident", 51, 1, 0, 1),
    Sketcher.Constraint("Horizontal", 0),
    Sketcher.Constraint("Horizontal", 2),
    Sketcher.Constraint("Horizontal", 21),
    Sketcher.Constraint("Vertical", 45),
    Sketcher.Constraint("Coincident", 3, 3, -1, 1),
    Sketcher.Constraint("Coincident", 7, 3, -1, 1),
    Sketcher.Constraint("Coincident", 11, 3, -1, 1),
    Sketcher.Constraint("Coincident", 15, 3, -1, 1),
    Sketcher.Constraint("Coincident", 19, 3, -1, 1),
    Sketcher.Constraint("Coincident", 23, 3, -1, 1),
    Sketcher.Constraint("Coincident", 27, 3, -1, 1),
    Sketcher.Constraint("Coincident", 31, 3, -1, 1),
    Sketcher.Constraint("Coincident", 35, 3, -1, 1),
    Sketcher.Constraint("Coincident", 39, 3, -1, 1),
    Sketcher.Constraint("Coincident", 43, 3, -1, 1),
    Sketcher.Constraint("Coincident", 47, 3, -1, 1),
    Sketcher.Constraint("Coincident", 51, 3, -1, 1),
    Sketcher.Constraint("Equal", 4, 6),
    Sketcher.Constraint("Equal", 3, 7),
    Sketcher.Constraint("Equal", 6, 8),
    Sketcher.Constraint("Equal", 8, 10),
    Sketcher.Constraint("Equal", 7, 11),
    Sketcher.Constraint("Equal", 10, 12),
    Sketcher.Constraint("Equal", 12, 14),
    Sketcher.Constraint("Equal", 11, 15),
    Sketcher.Constraint("Equal", 14, 16),
    Sketcher.Constraint("Equal", 16, 18),
    Sketcher.Constraint("Equal", 15, 19),
    Sketcher.Constraint("Equal", 18, 20),
    Sketcher.Constraint("Equal", 20, 22),
    Sketcher.Constraint("Equal", 19, 23),
    Sketcher.Constraint("Equal", 22, 24),
    Sketcher.Constraint("Equal", 24, 26),
    Sketcher.Constraint("Equal", 23, 27),
    Sketcher.Constraint("Equal", 26, 28),
    Sketcher.Constraint("Equal", 28, 30),
    Sketcher.Constraint("Equal", 27, 31),
    Sketcher.Constraint("Equal", 30, 32),
    Sketcher.Constraint("Equal", 32, 34),
    Sketcher.Constraint("Equal", 31, 35),
    Sketcher.Constraint("Equal", 34, 36),
    Sketcher.Constraint("Equal", 36, 38),
    Sketcher.Constraint("Equal", 35, 39),
    Sketcher.Constraint("Equal", 38, 40),
    Sketcher.Constraint("Equal", 40, 42),
    Sketcher.Constraint("Equal", 39, 43),
    Sketcher.Constraint("Equal", 42, 44),
    Sketcher.Constraint("Equal", 44, 46),
    Sketcher.Constraint("Equal", 43, 47),
    Sketcher.Constraint("Equal", 46, 48),
    Sketcher.Constraint("Equal", 48, 50),
    Sketcher.Constraint("Equal", 47, 51),
    Sketcher.Constraint("Symmetric", 20, 3, 22, 3, -2),
    Sketcher.Constraint("Symmetric", 18, 3, 24, 3, -2),
    Sketcher.Constraint("Symmetric", 16, 3, 26, 3, -2),
    Sketcher.Constraint("Symmetric", 14, 3, 28, 3, -2),
    Sketcher.Constraint("Symmetric", 12, 3, 30, 3, -2),
    Sketcher.Constraint("Symmetric", 10, 3, 32, 3, -2),
    Sketcher.Constraint("Symmetric", 8, 3, 34, 3, -2),
    Sketcher.Constraint("Symmetric", 6, 3, 36, 3, -2),
    Sketcher.Constraint("Symmetric", 4, 3, 38, 3, -2),
    Sketcher.Constraint("Symmetric", 44, 3, 46, 3, -1),
    Sketcher.Constraint("Symmetric", 42, 3, 48, 3, -1),
    Sketcher.Constraint("Symmetric", 40, 3, 50, 3, -1),
    Sketcher.Constraint("PointOnObject", 1, 3, -1),
    Sketcher.Constraint("Perpendicular", 5, 29),
    Sketcher.Constraint("Perpendicular", 9, 33),
    Sketcher.Constraint("Perpendicular", 13, 37),
    Sketcher.Constraint("Perpendicular", 17, 41),
    Sketcher.Constraint("Perpendicular", 25, 49),
    Sketcher.Constraint("Horizontal", 17, 2, 24, 1),
    Sketcher.Constraint("Horizontal", 16, 1, 25, 2),
    Sketcher.Constraint("Horizontal", 13, 2, 28, 1),
    Sketcher.Constraint("Horizontal", 12, 1, 29, 2),
    Sketcher.Constraint("Horizontal", 9, 2, 32, 1),
    Sketcher.Constraint("Horizontal", 8, 1, 33, 2),
    Sketcher.Constraint("Horizontal", 4, 1, 37, 2),
    Sketcher.Constraint("Vertical", 41, 2, 48, 1),
    Sketcher.Constraint("Equal", 21, 45),
    Sketcher.Constraint("Equal", 5, 9),
    Sketcher.Constraint("Equal", 9, 13),
    Sketcher.Constraint("Equal", 13, 17),
    Sketcher.Constraint("Equal", 37, 41),
    Sketcher.Constraint("Radius", 1, 4.0),
    Sketcher.Constraint("Radius", 4, 5.4),
    Sketcher.Constraint("Angle", 5, Q("-120 deg")),
    Sketcher.Constraint("Angle", 17, Q("-165 deg")),
    Sketcher.Constraint("Radius", 3, 12.09),
    Sketcher.Constraint("DistanceX", 21, 2, 21, 1, 0.62),
    Sketcher.Constraint("Distance", 5, 0.62),
    Sketcher.Constraint("DistanceX", -1, 1, 1, 3, 30.75),
    Sketcher.Constraint("DistanceX", -1, 1, 19, 1, 1.04),
    Sketcher.Constraint("DistanceY", 20, 1, -1, 1, 14.63),
    Sketcher.Constraint("DistanceY", 43, 1, -1, 1, 1.04),
    Sketcher.Constraint("DistanceX", 44, 1, -1, 1, 14.63),
    Sketcher.Constraint("DistanceY", 4, 3, -1, 1, 9.732559),
    Sketcher.Constraint("DistanceX", -1, 1, 6, 3, 12.49883),
    Sketcher.Constraint("DistanceY", 6, 3, -1, 1, 2.183492),
    Sketcher.Constraint("DistanceX", -1, 1, 12, 3, 2.183492),
    Sketcher.Constraint("DistanceY", 12, 3, -1, 1, 12.49883),
    Sketcher.Constraint("DistanceX", -1, 1, 14, 3, 9.732559),
    Sketcher.Constraint("DistanceY", 18, 3, -1, 1, 10.38197),
    Sketcher.Constraint("DistanceX", 42, 3, -1, 1, 10.38197),
    Sketcher.Constraint("DistanceX", -1, 1, 4, 1, 12.824952),
    Sketcher.Constraint("DistanceY", 7, 1, -1, 1, 7.781841),
    Sketcher.Constraint("DistanceY", 8, 1, -1, 1, 10.125769),
    Sketcher.Constraint("DistanceX", -1, 1, 9, 2, 10.125769),
    Sketcher.Constraint("DistanceX", -1, 1, 10, 1, 7.781841),
    Sketcher.Constraint("DistanceY", 12, 1, -1, 1, 12.514952),
    Sketcher.Constraint("DistanceX", -1, 1, 16, 1, 4.08596),
    Sketcher.Constraint("DistanceY", 16, 1, -1, 1, 14.051261),
    Sketcher.Constraint("DistanceX", 40, 1, -1, 1, 14.051261),
    Sketcher.Constraint("DistanceY", 40, 1, -1, 1, 4.08596),
    Sketcher.Constraint("DistanceX", 16, 3, -1, 1, 1.125844),
    Sketcher.Constraint("DistanceX", 40, 3, -1, 1, 12.638072),
])
pocket2 = body.newObject("PartDesign::Pocket", "Pocket001")
pocket2.Profile = sketch3
pocket2.Length = 4

# Sketch on XY plane
sketch4 = body.newObject("Sketcher::SketchObject", "Sketch003")
sketch4.AttachmentSupport = (doc.getObject("XY_Plane"), [""])
sketch4.MapMode = "FlatFace"
sketch4.AttachmentOffset = App.Placement(V(0, 0, 0.25), App.Rotation())
sketch4.addGeometry([
    Part.LineSegment(V(26.8, -4, 0), V(30.8, -4, 0)),
    Part.ArcOfCircle(Part.Circle(V(30.8, 0, 0), V(0, 0, 1), 4), math.radians(-90), math.radians(90)),
    Part.LineSegment(V(30.8, 4, 0), V(26.8, 4, 0)),
    Part.LineSegment(V(26.8, 4, 0), V(26.8, -4, 0)),
], False)
sketch4.addConstraint([
    Sketcher.Constraint("Tangent", 0, 2, 1, 1),
    Sketcher.Constraint("Tangent", 1, 2, 2, 1),
    Sketcher.Constraint("Coincident", 2, 2, 3, 1),
    Sketcher.Constraint("Coincident", 3, 2, 0, 1),
    Sketcher.Constraint("Horizontal", 0),
    Sketcher.Constraint("Horizontal", 2),
    Sketcher.Constraint("Vertical", 3),
    Sketcher.Constraint("PointOnObject", 1, 3, -1),
    Sketcher.Constraint("Radius", 1, 4.0),
    Sketcher.Constraint("DistanceX", 0, 1, 0, 2, 4.0),
    Sketcher.Constraint("DistanceX", -1, 1, 1, 3, 30.75),
])
pad2 = body.newObject("PartDesign::Pad", "Pad001")
pad2.Profile = sketch4
pad2.Length = 0.25
pad2.Reversed = True

# Sketch on XY plane
sketch5 = body.newObject("Sketcher::SketchObject", "Sketch004")
sketch5.AttachmentSupport = (doc.getObject("XY_Plane"), [""])
sketch5.MapMode = "FlatFace"
sketch5.addGeometry(Part.Circle(V(30.8, 0, 0), V(0, 0, 1), 1.8), False)
sketch5.addConstraint([
    Sketcher.Constraint("PointOnObject", 0, 3, -1),
    Sketcher.Constraint("Diameter", 0, 3.5),
    Sketcher.Constraint("DistanceX", -1, 1, 0, 3, 30.75),
])
pocket3 = body.newObject("PartDesign::Pocket", "Pocket002")
pocket3.Profile = sketch5
pocket3.Type = "ThroughAll"
pocket3.Reversed = True

# Sketch on XY plane
sketch6 = body.newObject("Sketcher::SketchObject", "Sketch005")
sketch6.AttachmentSupport = (doc.getObject("XY_Plane"), [""])
sketch6.MapMode = "FlatFace"
sketch6.addGeometry([
    Part.Circle(V(8.4, 0, 0), V(0, 0, 1), 0.6),  # 0
    Part.Circle(V(6.5, 0, 0), V(0, 0, 1), 0.6),  # 1
    Part.Circle(V(4.5, 0, 0), V(0, 0, 1), 0.6),  # 2
    Part.Circle(V(10.4, 0, 0), V(0, 0, 1), 0.6),  # 3
    Part.Circle(V(14.4, 0, 0), V(0, 0, 1), 0.6),  # 4
    Part.Circle(V(12.4, 0, 0), V(0, 0, 1), 0.6),  # 5
], False)
sketch6.addConstraint([
    Sketcher.Constraint("Equal", 0, 1),
    Sketcher.Constraint("Equal", 1, 2),
    Sketcher.Constraint("Equal", 2, 3),
    Sketcher.Constraint("Equal", 3, 4),
    Sketcher.Constraint("Equal", 4, 5),
    Sketcher.Constraint("PointOnObject", 0, 3, -1),
    Sketcher.Constraint("PointOnObject", 1, 3, -1),
    Sketcher.Constraint("PointOnObject", 2, 3, -1),
    Sketcher.Constraint("PointOnObject", 3, 3, -1),
    Sketcher.Constraint("PointOnObject", 4, 3, -1),
    Sketcher.Constraint("PointOnObject", 5, 3, -1),
    Sketcher.Constraint("Diameter", 0, 1.2),
    Sketcher.Constraint("DistanceX", 1, 3, 0, 3, 2.0),
    Sketcher.Constraint("DistanceX", 2, 3, 1, 3, 2.0),
    Sketcher.Constraint("DistanceX", 0, 3, 3, 3, 2.0),
    Sketcher.Constraint("DistanceX", 3, 3, 4, 3, 4.0),
    Sketcher.Constraint("DistanceX", 3, 3, 5, 3, 2.0),
    Sketcher.Constraint("DistanceX", -1, 1, 0, 3, 8.45),
])
pocket4 = body.newObject("PartDesign::Pocket", "Pocket003")
pocket4.Profile = sketch6
pocket4.Type = "ThroughAll"

# Sketch on XY plane
sketch7 = body.newObject("Sketcher::SketchObject", "Sketch006")
sketch7.AttachmentSupport = (doc.getObject("XY_Plane"), [""])
sketch7.MapMode = "FlatFace"
sketch7.addGeometry([
    Part.LineSegment(V(14.5, 2.2, 0), V(2.3, 2.8, 0)),
    Part.ArcOfCircle(Part.Circle(V(0, 0, 0), V(0, 0, 1), 3.6), math.radians(51), math.radians(309)),
    Part.LineSegment(V(2.3, -2.8, 0), V(14.5, -2.2, 0)),
    Part.ArcOfCircle(Part.Circle(V(14.4, 0, 0), V(0, 0, 1), 2.2), math.radians(-90), math.radians(90)),
], False)
sketch7.addConstraint([
    Sketcher.Constraint("Coincident", 0, 2, 1, 1),
    Sketcher.Constraint("Coincident", 1, 2, 2, 1),
    Sketcher.Constraint("Coincident", 2, 2, 3, 1),
    Sketcher.Constraint("Coincident", 3, 2, 0, 1),
    Sketcher.Constraint("Coincident", 1, 3, -1, 1),
    Sketcher.Constraint("Symmetric", 2, 2, 3, 2, -1),
    Sketcher.Constraint("Vertical", 0, 2, 1, 2),
    Sketcher.Constraint("Radius", 3, 2.2),
    Sketcher.Constraint("Radius", 1, 3.65),
    Sketcher.Constraint("DistanceX", -1, 1, 3, 3, 14.45),
    Sketcher.Constraint("Distance", 0, 12.186541),
    Sketcher.Constraint("DistanceY", 2, 2, 0, 2, 5.04547),
])
pocket5 = body.newObject("PartDesign::Pocket", "Pocket004")
pocket5.Profile = sketch7
pocket5.Length = 1.39

# Sketch on XY plane
sketch8 = body.newObject("Sketcher::SketchObject", "Sketch007")
sketch8.AttachmentSupport = (doc.getObject("XY_Plane"), [""])
sketch8.MapMode = "FlatFace"
sketch8.AttachmentOffset = App.Placement(V(0, 0, 0.57), App.Rotation())
sketch8.addGeometry([
    Part.LineSegment(V(26.8, -4, 0), V(30.8, -4, 0)),
    Part.ArcOfCircle(Part.Circle(V(30.8, 0, 0), V(0, 0, 1), 4), math.radians(-90), math.radians(90)),
    Part.LineSegment(V(30.8, 4, 0), V(26.8, 4, 0)),
    Part.LineSegment(V(26.8, 4, 0), V(26.8, -4, 0)),
], False)
sketch8.addConstraint([
    Sketcher.Constraint("Tangent", 0, 2, 1, 1),
    Sketcher.Constraint("Tangent", 1, 2, 2, 1),
    Sketcher.Constraint("Coincident", 2, 2, 3, 1),
    Sketcher.Constraint("Coincident", 3, 2, 0, 1),
    Sketcher.Constraint("Horizontal", 0),
    Sketcher.Constraint("Horizontal", 2),
    Sketcher.Constraint("Vertical", 3),
    Sketcher.Constraint("PointOnObject", 1, 3, -1),
    Sketcher.Constraint("Radius", 1, 4.0),
    Sketcher.Constraint("DistanceX", 0, 1, 0, 2, 4.0),
    Sketcher.Constraint("DistanceX", -1, 1, 1, 3, 30.75),
])
pad3 = body.newObject("PartDesign::Pad", "Pad002")
pad3.Profile = sketch8
pad3.Length = 0.32
pad3.Reversed = True

# Sketch on XY plane
sketch9 = body.newObject("Sketcher::SketchObject", "Sketch008")
sketch9.AttachmentSupport = (doc.getObject("XY_Plane"), [""])
sketch9.MapMode = "FlatFace"
sketch9.AttachmentOffset = App.Placement(V(0, 0, -6), App.Rotation())
sketch9.addGeometry(Part.Circle(V(30.8, 0, 0), V(0, 0, 1), 1.8), False)
sketch9.addConstraint([
    Sketcher.Constraint("PointOnObject", 0, 3, -1),
    Sketcher.Constraint("Diameter", 0, 3.5),
    Sketcher.Constraint("DistanceX", -1, 1, 0, 3, 30.75),
])
pocket6 = body.newObject("PartDesign::Pocket", "Pocket005")
pocket6.Profile = sketch9
pocket6.Type = "ThroughAll"
pocket6.Reversed = True

doc.recompute()
